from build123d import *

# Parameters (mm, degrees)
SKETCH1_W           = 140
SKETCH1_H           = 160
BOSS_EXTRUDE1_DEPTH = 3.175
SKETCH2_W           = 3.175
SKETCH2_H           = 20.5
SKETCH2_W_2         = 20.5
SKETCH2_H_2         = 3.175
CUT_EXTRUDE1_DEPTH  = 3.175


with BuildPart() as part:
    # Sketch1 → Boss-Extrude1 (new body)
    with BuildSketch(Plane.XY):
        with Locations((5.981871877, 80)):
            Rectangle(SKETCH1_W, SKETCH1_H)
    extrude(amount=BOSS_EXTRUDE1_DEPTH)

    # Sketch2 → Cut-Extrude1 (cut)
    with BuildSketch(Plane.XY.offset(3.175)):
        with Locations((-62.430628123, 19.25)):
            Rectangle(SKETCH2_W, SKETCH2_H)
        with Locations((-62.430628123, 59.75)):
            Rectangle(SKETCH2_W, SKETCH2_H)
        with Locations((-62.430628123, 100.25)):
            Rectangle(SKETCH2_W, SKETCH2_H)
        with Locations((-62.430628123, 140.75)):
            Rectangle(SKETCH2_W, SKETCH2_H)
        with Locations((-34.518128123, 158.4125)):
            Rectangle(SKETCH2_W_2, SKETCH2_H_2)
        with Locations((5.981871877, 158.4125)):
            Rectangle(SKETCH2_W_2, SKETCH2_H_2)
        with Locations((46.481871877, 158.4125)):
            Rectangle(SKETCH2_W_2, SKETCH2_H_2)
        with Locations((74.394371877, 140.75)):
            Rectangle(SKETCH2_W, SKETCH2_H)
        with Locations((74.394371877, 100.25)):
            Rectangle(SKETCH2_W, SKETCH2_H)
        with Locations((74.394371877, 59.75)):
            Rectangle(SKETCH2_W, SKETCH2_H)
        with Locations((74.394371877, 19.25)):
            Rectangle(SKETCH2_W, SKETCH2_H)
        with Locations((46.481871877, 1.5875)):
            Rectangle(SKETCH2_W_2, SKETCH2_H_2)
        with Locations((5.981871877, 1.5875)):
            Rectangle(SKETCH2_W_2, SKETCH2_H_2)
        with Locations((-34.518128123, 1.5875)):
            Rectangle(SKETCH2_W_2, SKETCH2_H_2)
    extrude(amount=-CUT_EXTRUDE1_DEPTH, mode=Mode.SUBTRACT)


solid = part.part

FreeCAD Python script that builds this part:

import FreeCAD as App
import Part
import Sketcher

V = App.Vector
Q = App.Units.Quantity

doc = App.newDocument("Part")
body = doc.addObject("PartDesign::Body", "Body")

sketch1 = body.newObject("Sketcher::SketchObject", "Sketch")
sketch1.AttachmentSupport = (doc.getObject("XY_Plane"), [""])
sketch1.MapMode = "FlatFace"
sketch1.addGeometry(Part.LineSegment(V(-64.018128, 160, 0), V(-64.018128, 0, 0)), False)
sketch1.addGeometry(Part.LineSegment(V(-64.018128, 0, 0), V(75.981872, 0, 0)), False)
sketch1.addGeometry(Part.LineSegment(V(75.981872, 0, 0), V(75.981872, 160, 0)), False)
sketch1.addGeometry(Part.LineSegment(V(75.981872, 160, 0), V(-64.018128, 160, 0)), False)
sketch1.addConstraint(Sketcher.Constraint("Coincident", 0, 2, 1, 1))
sketch1.addConstraint(Sketcher.Constraint("Coincident", 1, 2, 2, 1))
sketch1.addConstraint(Sketcher.Constraint("Coincident", 2, 2, 3, 1))
sketch1.addConstraint(Sketcher.Constraint("Coincident", 3, 2, 0, 1))
sketch1.addConstraint(Sketcher.Constraint("Vertical", 0))
sketch1.addConstraint(Sketcher.Constraint("Horizontal", 1))
sketch1.addConstraint(Sketcher.Constraint("Vertical", 2))
sketch1.addConstraint(Sketcher.Constraint("Horizontal", 3))
sketch1.addConstraint(Sketcher.Constraint("PointOnObject", 0, 2, -1))
sketch1.addConstraint(Sketcher.Constraint("DistanceX", 1, 1, 1, 2, Q("140 mm")))
sketch1.addConstraint(Sketcher.Constraint("DistanceY", 0, 2, 0, 1, Q("160 mm")))
sketch1.addConstraint(Sketcher.Constraint("DistanceX", 0, 2, -1, 1, Q("64.018128 mm")))
pad1 = body.newObject("PartDesign::Pad", "Pad")
pad1.Profile = sketch1
pad1.Length = 3.175

sketch2 = body.newObject("Sketcher::SketchObject", "Sketch001")
sketch2.AttachmentSupport = (doc.getObject("XY_Plane"), [""])
sketch2.MapMode = "FlatFace"
sketch2.AttachmentOffset = App.Placement(V(0, 0, 3.175), App.Rotation())
sketch2.addGeometry(Part.LineSegment(V(-64.018128, 29.5, 0), V(-64.018128, 9, 0)), False)
sketch2.addGeometry(Part.LineSegment(V(-64.018128, 9, 0), V(-60.843128, 9, 0)), False)
sketch2.addGeometry(Part.LineSegment(V(-60.843128, 9, 0), V(-60.843128, 29.5, 0)), False)
sketch2.addGeometry(Part.LineSegment(V(-60.843128, 29.5, 0), V(-64.018128, 29.5, 0)), False)
sketch2.addGeometry(Part.LineSegment(V(-64.018128, 70, 0), V(-64.018128, 49.5, 0)), False)
sketch2.addGeometry(Part.LineSegment(V(-64.018128, 49.5, 0), V(-60.843128, 49.5, 0)), False)
sketch2.addGeometry(Part.LineSegment(V(-60.843128, 49.5, 0), V(-60.843128, 70, 0)), False)
sketch2.addGeometry(Part.LineSegment(V(-60.843128, 70, 0), V(-64.018128, 70, 0)), False)
sketch2.addGeometry(Part.LineSegment(V(-64.018128, 110.5, 0), V(-64.018128, 90, 0)), False)
sketch2.addGeometry(Part.LineSegment(V(-64.018128, 90, 0), V(-60.843128, 90, 0)), False)
sketch2.addGeometry(Part.LineSegment(V(-60.843128, 90, 0), V(-60.843128, 110.5, 0)), False)
sketch2.addGeometry(Part.LineSegment(V(-60.843128, 110.5, 0), V(-64.018128, 110.5, 0)), False)
sketch2.addGeometry(Part.LineSegment(V(-64.018128, 151, 0), V(-64.018128, 130.5, 0)), False)
sketch2.addGeometry(Part.LineSegment(V(-64.018128, 130.5, 0), V(-60.843128, 130.5, 0)), False)
sketch2.addGeometry(Part.LineSegment(V(-60.843128, 130.5, 0), V(-60.843128, 151, 0)), False)
sketch2.addGeometry(Part.LineSegment(V(-60.843128, 151, 0), V(-64.018128, 151, 0)), False)
sketch2.addGeometry(Part.LineSegment(V(-44.768128, 160, 0), V(-44.768128, 156.825, 0)), False)
sketch2.addGeometry(Part.LineSegment(V(-44.768128, 156.825, 0), V(-24.268128, 156.825, 0)), False)
sketch2.addGeometry(Part.LineSegment(V(-24.268128, 156.825, 0), V(-24.268128, 160, 0)), False)
sketch2.addGeometry(Part.LineSegment(V(-24.268128, 160, 0), V(-44.768128, 160, 0)), False)
sketch2.addGeometry(Part.LineSegment(V(-4.268128, 160, 0), V(-4.268128, 156.825, 0)), False)
sketch2.addGeometry(Part.LineSegment(V(-4.268128, 156.825, 0), V(16.231872, 156.825, 0)), False)
sketch2.addGeometry(Part.LineSegment(V(16.231872, 156.825, 0), V(16.231872, 160, 0)), False)
sketch2.addGeometry(Part.LineSegment(V(16.231872, 160, 0), V(-4.268128, 160, 0)), False)
sketch2.addGeometry(Part.LineSegment(V(36.231872, 160, 0), V(36.231872, 156.825, 0)), False)
sketch2.addGeometry(Part.LineSegment(V(36.231872, 156.825, 0), V(56.731872, 156.825, 0)), False)
sketch2.addGeometry(Part.LineSegment(V(56.731872, 156.825, 0), V(56.731872, 160, 0)), False)
sketch2.addGeometry(Part.LineSegment(V(56.731872, 160, 0), V(36.231872, 160, 0)), False)
sketch2.addGeometry(Part.LineSegment(V(72.806872, 151, 0), V(72.806872, 130.5, 0)), False)
sketch2.addGeometry(Part.LineSegment(V(72.806872, 130.5, 0), V(75.981872, 130.5, 0)), False)
sketch2.addGeometry(Part.LineSegment(V(75.981872, 130.5, 0), V(75.981872, 151, 0)), False)
sketch2.addGeometry(Part.LineSegment(V(75.981872, 151, 0), V(72.806872, 151, 0)), False)
sketch2.addGeometry(Part.LineSegment(V(72.806872, 110.5, 0), V(72.806872, 90, 0)), False)
sketch2.addGeometry(Part.LineSegment(V(72.806872, 90, 0), V(75.981872, 90, 0)), False)
sketch2.addGeometry(Part.LineSegment(V(75.981872, 90, 0), V(75.981872, 110.5, 0)), False)
sketch2.addGeometry(Part.LineSegment(V(75.981872, 110.5, 0), V(72.806872, 110.5, 0)), False)
sketch2.addGeometry(Part.LineSegment(V(72.806872, 70, 0), V(72.806872, 49.5, 0)), False)
sketch2.addGeometry(Part.LineSegment(V(72.806872, 49.5, 0), V(75.981872, 49.5, 0)), False)
sketch2.addGeometry(Part.LineSegment(V(75.981872, 49.5, 0), V(75.981872, 70, 0)), False)
sketch2.addGeometry(Part.LineSegment(V(75.981872, 70, 0), V(72.806872, 70, 0)), False)
sketch2.addGeometry(Part.LineSegment(V(72.806872, 29.5, 0), V(72.806872, 9, 0)), False)
sketch2.addGeometry(Part.LineSegment(V(72.806872, 9, 0), V(75.981872, 9, 0)), False)
sketch2.addGeometry(Part.LineSegment(V(75.981872, 9, 0), V(75.981872, 29.5, 0)), False)
sketch2.addGeometry(Part.LineSegment(V(75.981872, 29.5, 0), V(72.806872, 29.5, 0)), False)
sketch2.addGeometry(Part.LineSegment(V(36.231872, 3.175, 0), V(36.231872, 0, 0)), False)
sketch2.addGeometry(Part.LineSegment(V(36.231872, 0, 0), V(56.731872, 0, 0)), False)
sketch2.addGeometry(Part.LineSegment(V(56.731872, 0, 0), V(56.731872, 3.175, 0)), False)
sketch2.addGeometry(Part.LineSegment(V(56.731872, 3.175, 0), V(36.231872, 3.175, 0)), False)
sketch2.addGeometry(Part.LineSegment(V(-4.268128, 3.175, 0), V(-4.268128, 0, 0)), False)
sketch2.addGeometry(Part.LineSegment(V(-4.268128, 0, 0), V(16.231872, 0, 0)), False)
sketch2.addGeometry(Part.LineSegment(V(16.231872, 0, 0), V(16.231872, 3.175, 0)), False)
sketch2.addGeometry(Part.LineSegment(V(16.231872, 3.175, 0), V(-4.268128, 3.175, 0)), False)
sketch2.addGeometry(Part.LineSegment(V(-44.768128, 3.175, 0), V(-44.768128, 0, 0)), False)
sketch2.addGeometry(Part.LineSegment(V(-44.768128, 0, 0), V(-24.268128, 0, 0)), False)
sketch2.addGeometry(Part.LineSegment(V(-24.268128, 0, 0), V(-24.268128, 3.175, 0)), False)
sketch2.addGeometry(Part.LineSegment(V(-24.268128, 3.175, 0), V(-44.768128, 3.175, 0)), False)
sketch2.addConstraint(Sketcher.Constraint("Coincident", 0, 2, 1, 1))
sketch2.addConstraint(Sketcher.Constraint("Coincident", 1, 2, 2, 1))
sketch2.addConstraint(Sketcher.Constraint("Coincident", 2, 2, 3, 1))
sketch2.addConstraint(Sketcher.Constraint("Coincident", 3, 2, 0, 1))
sketch2.addConstraint(Sketcher.Constraint("Coincident", 4, 2, 5, 1))
sketch2.addConstraint(Sketcher.Constraint("Coincident", 5, 2, 6, 1))
sketch2.addConstraint(Sketcher.Constraint("Coincident", 6, 2, 7, 1))
sketch2.addConstraint(Sketcher.Constraint("Coincident", 7, 2, 4, 1))
sketch2.addConstraint(Sketcher.Constraint("Coincident", 8, 2, 9, 1))
sketch2.addConstraint(Sketcher.Constraint("Coincident", 9, 2, 10, 1))
sketch2.addConstraint(Sketcher.Constraint("Coincident", 10, 2, 11, 1))
sketch2.addConstraint(Sketcher.Constraint("Coincident", 11, 2, 8, 1))
sketch2.addConstraint(Sketcher.Constraint("Coincident", 12, 2, 13, 1))
sketch2.addConstraint(Sketcher.Constraint("Coincident", 13, 2, 14, 1))
sketch2.addConstraint(Sketcher.Constraint("Coincident", 14, 2, 15, 1))
sketch2.addConstraint(Sketcher.Constraint("Coincident", 15, 2, 12, 1))
sketch2.addConstraint(Sketcher.Constraint("Coincident", 16, 2, 17, 1))
sketch2.addConstraint(Sketcher.Constraint("Coincident", 17, 2, 18, 1))
sketch2.addConstraint(Sketcher.Constraint("Coincident", 18, 2, 19, 1))
sketch2.addConstraint(Sketcher.Constraint("Coincident", 19, 2, 16, 1))
sketch2.addConstraint(Sketcher.Constraint("Coincident", 20, 2, 21, 1))
sketch2.addConstraint(Sketcher.Constraint("Coincident", 21, 2, 22, 1))
sketch2.addConstraint(Sketcher.Constraint("Coincident", 22, 2, 23, 1))
sketch2.addConstraint(Sketcher.Constraint("Coincident", 23, 2, 20, 1))
sketch2.addConstraint(Sketcher.Constraint("Coincident", 24, 2, 25, 1))
sketch2.addConstraint(Sketcher.Constraint("Coincident", 25, 2, 26, 1))
sketch2.addConstraint(Sketcher.Constraint("Coincident", 26, 2, 27, 1))
sketch2.addConstraint(Sketcher.Constraint("Coincident", 27, 2, 24, 1))
sketch2.addConstraint(Sketcher.Constraint("Coincident", 28, 2, 29, 1))
sketch2.addConstraint(Sketcher.Constraint("Coincident", 29, 2, 30, 1))
sketch2.addConstraint(Sketcher.Constraint("Coincident", 30, 2, 31, 1))
sketch2.addConstraint(Sketcher.Constraint("Coincident", 31, 2, 28, 1))
sketch2.addConstraint(Sketcher.Constraint("Coincident", 32, 2, 33, 1))
sketch2.addConstraint(Sketcher.Constraint("Coincident", 33, 2, 34, 1))
sketch2.addConstraint(Sketcher.Constraint("Coincident", 34, 2, 35, 1))
sketch2.addConstraint(Sketcher.Constraint("Coincident", 35, 2, 32, 1))
sketch2.addConstraint(Sketcher.Constraint("Coincident", 36, 2, 37, 1))
sketch2.addConstraint(Sketcher.Constraint("Coincident", 37, 2, 38, 1))
sketch2.addConstraint(Sketcher.Constraint("Coincident", 38, 2, 39, 1))
sketch2.addConstraint(Sketcher.Constraint("Coincident", 39, 2, 36, 1))
sketch2.addConstraint(Sketcher.Constraint("Coincident", 40, 2, 41, 1))
sketch2.addConstraint(Sketcher.Constraint("Coincident", 41, 2, 42, 1))
sketch2.addConstraint(Sketcher.Constraint("Coincident", 42, 2, 43, 1))
sketch2.addConstraint(Sketcher.Constraint("Coincident", 43, 2, 40, 1))
sketch2.addConstraint(Sketcher.Constraint("Coincident", 44, 2, 45, 1))
sketch2.addConstraint(Sketcher.Constraint("Coincident", 45, 2, 46, 1))
sketch2.addConstraint(Sketcher.Constraint("Coincident", 46, 2, 47, 1))
sketch2.addConstraint(Sketcher.Constraint("Coincident", 47, 2, 44, 1))
sketch2.addConstraint(Sketcher.Constraint("Coincident", 48, 2, 49, 1))
sketch2.addConstraint(Sketcher.Constraint("Coincident", 49, 2, 50, 1))
sketch2.addConstraint(Sketcher.Constraint("Coincident", 50, 2, 51, 1))
sketch2.addConstraint(Sketcher.Constraint("Coincident", 51, 2, 48, 1))
sketch2.addConstraint(Sketcher.Constraint("Coincident", 52, 2, 53, 1))
sketch2.addConstraint(Sketcher.Constraint("Coincident", 53, 2, 54, 1))
sketch2.addConstraint(Sketcher.Constraint("Coincident", 54, 2, 55, 1))
sketch2.addConstraint(Sketcher.Constraint("Coincident", 55, 2, 52, 1))
sketch2.addConstraint(Sketcher.Constraint("Vertical", 0))
sketch2.addConstraint(Sketcher.Constraint("Horizontal", 1))
sketch2.addConstraint(Sketcher.Constraint("Vertical", 2))
sketch2.addConstraint(Sketcher.Constraint("Horizontal", 3))
sketch2.addConstraint(Sketcher.Constraint("Vertical", 4))
sketch2.addConstraint(Sketcher.Constraint("Horizontal", 5))
sketch2.addConstraint(Sketcher.Constraint("Vertical", 6))
sketch2.addConstraint(Sketcher.Constraint("Horizontal", 7))
sketch2.addConstraint(Sketcher.Constraint("Vertical", 8))
sketch2.addConstraint(Sketcher.Constraint("Horizontal", 9))
sketch2.addConstraint(Sketcher.Constraint("Vertical", 10))
sketch2.addConstraint(Sketcher.Constraint("Horizontal", 11))
sketch2.addConstraint(Sketcher.Constraint("Vertical", 12))
sketch2.addConstraint(Sketcher.Constraint("Horizontal", 13))
sketch2.addConstraint(Sketcher.Constraint("Vertical", 14))
sketch2.addConstraint(Sketcher.Constraint("Horizontal", 15))
sketch2.addConstraint(Sketcher.Constraint("Vertical", 16))
sketch2.addConstraint(Sketcher.Constraint("Horizontal", 17))
sketch2.addConstraint(Sketcher.Constraint("Vertical", 18))
sketch2.addConstraint(Sketcher.Constraint("Horizontal", 19))
sketch2.addConstraint(Sketcher.Constraint("Vertical", 20))
sketch2.addConstraint(Sketcher.Constraint("Horizontal", 21))
sketch2.addConstraint(Sketcher.Constraint("Vertical", 22))
sketch2.addConstraint(Sketcher.Constraint("Horizontal", 23))
sketch2.addConstraint(Sketcher.Constraint("Vertical", 24))
sketch2.addConstraint(Sketcher.Constraint("Horizontal", 25))
sketch2.addConstraint(Sketcher.Constraint("Vertical", 26))
sketch2.addConstraint(Sketcher.Constraint("Horizontal", 27))
sketch2.addConstraint(Sketcher.Constraint("Vertical", 28))
sketch2.addConstraint(Sketcher.Constraint("Horizontal", 29))
sketch2.addConstraint(Sketcher.Constraint("Vertical", 30))
sketch2.addConstraint(Sketcher.Constraint("Horizontal", 31))
sketch2.addConstraint(Sketcher.Constraint("Vertical", 32))
sketch2.addConstraint(Sketcher.Constraint("Horizontal", 33))
sketch2.addConstraint(Sketcher.Constraint("Vertical", 34))
sketch2.addConstraint(Sketcher.Constraint("Horizontal", 35))
sketch2.addConstraint(Sketcher.Constraint("Vertical", 36))
sketch2.addConstraint(Sketcher.Constraint("Horizontal", 37))
sketch2.addConstraint(Sketcher.Constraint("Vertical", 38))
sketch2.addConstraint(Sketcher.Constraint("Horizontal", 39))
sketch2.addConstraint(Sketcher.Constraint("Vertical", 40))
sketch2.addConstraint(Sketcher.Constraint("Horizontal", 41))
sketch2.addConstraint(Sketcher.Constraint("Vertical", 42))
sketch2.addConstraint(Sketcher.Constraint("Horizontal", 43))
sketch2.addConstraint(Sketcher.Constraint("Vertical", 44))
sketch2.addConstraint(Sketcher.Constraint("Horizontal", 45))
sketch2.addConstraint(Sketcher.Constraint("Vertical", 46))
sketch2.addConstraint(Sketcher.Constraint("Horizontal", 47))
sketch2.addConstraint(Sketcher.Constraint("Vertical", 48))
sketch2.addConstraint(Sketcher.Constraint("Horizontal", 49))
sketch2.addConstraint(Sketcher.Constraint("Vertical", 50))
sketch2.addConstraint(Sketcher.Constraint("Horizontal", 51))
sketch2.addConstraint(Sketcher.Constraint("Vertical", 52))
sketch2.addConstraint(Sketcher.Constraint("Horizontal", 53))
sketch2.addConstraint(Sketcher.Constraint("Vertical", 54))
sketch2.addConstraint(Sketcher.Constraint("Horizontal", 55))
sketch2.addConstraint(Sketcher.Constraint("PointOnObject", 44, 2, -1))
sketch2.addConstraint(Sketcher.Constraint("PointOnObject", 48, 2, -1))
sketch2.addConstraint(Sketcher.Constraint("PointOnObject", 52, 2, -1))
sketch2.addConstraint(Sketcher.Constraint("Horizontal", 17, 2, 20, 2))
sketch2.addConstraint(Sketcher.Constraint("Horizontal", 19, 2, 22, 2))
sketch2.addConstraint(Sketcher.Constraint("Horizontal", 21, 2, 24, 2))
sketch2.addConstraint(Sketcher.Constraint("Horizontal", 23, 2, 26, 2))
sketch2.addConstraint(Sketcher.Constraint("Horizontal", 13, 2, 28, 2))
sketch2.addConstraint(Sketcher.Constraint("Horizontal", 15, 2, 30, 2))
sketch2.addConstraint(Sketcher.Constraint("Horizontal", 9, 2, 32, 2))
sketch2.addConstraint(Sketcher.Constraint("Horizontal", 11, 2, 34, 2))
sketch2.addConstraint(Sketcher.Constraint("Horizontal", 5, 2, 36, 2))
sketch2.addConstraint(Sketcher.Constraint("Horizontal", 7, 2, 38, 2))
sketch2.addConstraint(Sketcher.Constraint("Horizontal", 1, 2, 40, 2))
sketch2.addConstraint(Sketcher.Constraint("Horizontal", 3, 2, 42, 2))
sketch2.addConstraint(Sketcher.Constraint("Horizontal", 47, 2, 50, 2))
sketch2.addConstraint(Sketcher.Constraint("Horizontal", 51, 2, 54, 2))
sketch2.addConstraint(Sketcher.Constraint("Vertical", 3, 2, 4, 2))
sketch2.addConstraint(Sketcher.Constraint("Vertical", 2, 2, 5, 2))
sketch2.addConstraint(Sketcher.Constraint("Vertical", 7, 2, 8, 2))
sketch2.addConstraint(Sketcher.Constraint("Vertical", 6, 2, 9, 2))
sketch2.addConstraint(Sketcher.Constraint("Vertical", 11, 2, 12, 2))
sketch2.addConstraint(Sketcher.Constraint("Vertical", 10, 2, 13, 2))
sketch2.addConstraint(Sketcher.Constraint("Vertical", 31, 2, 32, 2))
sketch2.addConstraint(Sketcher.Constraint("Vertical", 30, 2, 33, 2))
sketch2.addConstraint(Sketcher.Constraint("Vertical", 35, 2, 36, 2))
sketch2.addConstraint(Sketcher.Constraint("Vertical", 34, 2, 37, 2))
sketch2.addConstraint(Sketcher.Constraint("Vertical", 39, 2, 40, 2))
sketch2.addConstraint(Sketcher.Constraint("Vertical", 38, 2, 41, 2))
sketch2.addConstraint(Sketcher.Constraint("Vertical", 27, 2, 44, 2))
sketch2.addConstraint(Sketcher.Constraint("Vertical", 26, 2, 45, 2))
sketch2.addConstraint(Sketcher.Constraint("Vertical", 23, 2, 48, 2))
sketch2.addConstraint(Sketcher.Constraint("Vertical", 22, 2, 49, 2))
sketch2.addConstraint(Sketcher.Constraint("Vertical", 19, 2, 52, 2))
sketch2.addConstraint(Sketcher.Constraint("Vertical", 18, 2, 53, 2))
sketch2.addConstraint(Sketcher.Constraint("Equal", 19, 21))
sketch2.addConstraint(Sketcher.Constraint("Equal", 23, 25))
sketch2.addConstraint(Sketcher.Constraint("Equal", 15, 29))
sketch2.addConstraint(Sketcher.Constraint("Equal", 55, 0))
sketch2.addConstraint(Sketcher.Constraint("Equal", 2, 4))
sketch2.addConstraint(Sketcher.Constraint("Equal", 6, 8))
sketch2.addConstraint(Sketcher.Constraint("Equal", 10, 12))
sketch2.addConstraint(Sketcher.Constraint("Equal", 43, 16))
sketch2.addConstraint(Sketcher.Constraint("Equal", 26, 44))
sketch2.addConstraint(Sketcher.Constraint("DistanceX", 17, 1, 17, 2, Q("20.5 mm")))
sketch2.addConstraint(Sketcher.Constraint("DistanceY", -1, 1, 0, 2, Q("9 mm")))
sketch2.addConstraint(Sketcher.Constraint("DistanceY", -1, 1, 6, 2, Q("70 mm")))
sketch2.addConstraint(Sketcher.Constraint("DistanceY", -1, 1, 8, 2, Q("90 mm")))
sketch2.addConstraint(Sketcher.Constraint("DistanceY", -1, 1, 14, 2, Q("151 mm")))
sketch2.addConstraint(Sketcher.Constraint("DistanceY", -1, 1, 18, 2, Q("160 mm")))
sketch2.addConstraint(Sketcher.Constraint("DistanceX", 17, 2, 20, 2, Q("20 mm")))
sketch2.addConstraint(Sketcher.Constraint("DistanceX", 21, 2, 24, 2, Q("20 mm")))
sketch2.addConstraint(Sketcher.Constraint("DistanceX", 1, 1, 1, 2, Q("3.175 mm")))
sketch2.addConstraint(Sketcher.Constraint("DistanceX", 15, 2, 16, 2, Q("19.25 mm")))
sketch2.addConstraint(Sketcher.Constraint("DistanceX", 25, 2, 29, 2, Q("19.25 mm")))
sketch2.addConstraint(Sketcher.Constraint("DistanceX", 0, 2, -1, 1, Q("64.018128 mm")))
pocket1 = body.newObject("PartDesign::Pocket", "Pocket")
pocket1.Profile = sketch2
pocket1.Length = 3.175

doc.recompute()
